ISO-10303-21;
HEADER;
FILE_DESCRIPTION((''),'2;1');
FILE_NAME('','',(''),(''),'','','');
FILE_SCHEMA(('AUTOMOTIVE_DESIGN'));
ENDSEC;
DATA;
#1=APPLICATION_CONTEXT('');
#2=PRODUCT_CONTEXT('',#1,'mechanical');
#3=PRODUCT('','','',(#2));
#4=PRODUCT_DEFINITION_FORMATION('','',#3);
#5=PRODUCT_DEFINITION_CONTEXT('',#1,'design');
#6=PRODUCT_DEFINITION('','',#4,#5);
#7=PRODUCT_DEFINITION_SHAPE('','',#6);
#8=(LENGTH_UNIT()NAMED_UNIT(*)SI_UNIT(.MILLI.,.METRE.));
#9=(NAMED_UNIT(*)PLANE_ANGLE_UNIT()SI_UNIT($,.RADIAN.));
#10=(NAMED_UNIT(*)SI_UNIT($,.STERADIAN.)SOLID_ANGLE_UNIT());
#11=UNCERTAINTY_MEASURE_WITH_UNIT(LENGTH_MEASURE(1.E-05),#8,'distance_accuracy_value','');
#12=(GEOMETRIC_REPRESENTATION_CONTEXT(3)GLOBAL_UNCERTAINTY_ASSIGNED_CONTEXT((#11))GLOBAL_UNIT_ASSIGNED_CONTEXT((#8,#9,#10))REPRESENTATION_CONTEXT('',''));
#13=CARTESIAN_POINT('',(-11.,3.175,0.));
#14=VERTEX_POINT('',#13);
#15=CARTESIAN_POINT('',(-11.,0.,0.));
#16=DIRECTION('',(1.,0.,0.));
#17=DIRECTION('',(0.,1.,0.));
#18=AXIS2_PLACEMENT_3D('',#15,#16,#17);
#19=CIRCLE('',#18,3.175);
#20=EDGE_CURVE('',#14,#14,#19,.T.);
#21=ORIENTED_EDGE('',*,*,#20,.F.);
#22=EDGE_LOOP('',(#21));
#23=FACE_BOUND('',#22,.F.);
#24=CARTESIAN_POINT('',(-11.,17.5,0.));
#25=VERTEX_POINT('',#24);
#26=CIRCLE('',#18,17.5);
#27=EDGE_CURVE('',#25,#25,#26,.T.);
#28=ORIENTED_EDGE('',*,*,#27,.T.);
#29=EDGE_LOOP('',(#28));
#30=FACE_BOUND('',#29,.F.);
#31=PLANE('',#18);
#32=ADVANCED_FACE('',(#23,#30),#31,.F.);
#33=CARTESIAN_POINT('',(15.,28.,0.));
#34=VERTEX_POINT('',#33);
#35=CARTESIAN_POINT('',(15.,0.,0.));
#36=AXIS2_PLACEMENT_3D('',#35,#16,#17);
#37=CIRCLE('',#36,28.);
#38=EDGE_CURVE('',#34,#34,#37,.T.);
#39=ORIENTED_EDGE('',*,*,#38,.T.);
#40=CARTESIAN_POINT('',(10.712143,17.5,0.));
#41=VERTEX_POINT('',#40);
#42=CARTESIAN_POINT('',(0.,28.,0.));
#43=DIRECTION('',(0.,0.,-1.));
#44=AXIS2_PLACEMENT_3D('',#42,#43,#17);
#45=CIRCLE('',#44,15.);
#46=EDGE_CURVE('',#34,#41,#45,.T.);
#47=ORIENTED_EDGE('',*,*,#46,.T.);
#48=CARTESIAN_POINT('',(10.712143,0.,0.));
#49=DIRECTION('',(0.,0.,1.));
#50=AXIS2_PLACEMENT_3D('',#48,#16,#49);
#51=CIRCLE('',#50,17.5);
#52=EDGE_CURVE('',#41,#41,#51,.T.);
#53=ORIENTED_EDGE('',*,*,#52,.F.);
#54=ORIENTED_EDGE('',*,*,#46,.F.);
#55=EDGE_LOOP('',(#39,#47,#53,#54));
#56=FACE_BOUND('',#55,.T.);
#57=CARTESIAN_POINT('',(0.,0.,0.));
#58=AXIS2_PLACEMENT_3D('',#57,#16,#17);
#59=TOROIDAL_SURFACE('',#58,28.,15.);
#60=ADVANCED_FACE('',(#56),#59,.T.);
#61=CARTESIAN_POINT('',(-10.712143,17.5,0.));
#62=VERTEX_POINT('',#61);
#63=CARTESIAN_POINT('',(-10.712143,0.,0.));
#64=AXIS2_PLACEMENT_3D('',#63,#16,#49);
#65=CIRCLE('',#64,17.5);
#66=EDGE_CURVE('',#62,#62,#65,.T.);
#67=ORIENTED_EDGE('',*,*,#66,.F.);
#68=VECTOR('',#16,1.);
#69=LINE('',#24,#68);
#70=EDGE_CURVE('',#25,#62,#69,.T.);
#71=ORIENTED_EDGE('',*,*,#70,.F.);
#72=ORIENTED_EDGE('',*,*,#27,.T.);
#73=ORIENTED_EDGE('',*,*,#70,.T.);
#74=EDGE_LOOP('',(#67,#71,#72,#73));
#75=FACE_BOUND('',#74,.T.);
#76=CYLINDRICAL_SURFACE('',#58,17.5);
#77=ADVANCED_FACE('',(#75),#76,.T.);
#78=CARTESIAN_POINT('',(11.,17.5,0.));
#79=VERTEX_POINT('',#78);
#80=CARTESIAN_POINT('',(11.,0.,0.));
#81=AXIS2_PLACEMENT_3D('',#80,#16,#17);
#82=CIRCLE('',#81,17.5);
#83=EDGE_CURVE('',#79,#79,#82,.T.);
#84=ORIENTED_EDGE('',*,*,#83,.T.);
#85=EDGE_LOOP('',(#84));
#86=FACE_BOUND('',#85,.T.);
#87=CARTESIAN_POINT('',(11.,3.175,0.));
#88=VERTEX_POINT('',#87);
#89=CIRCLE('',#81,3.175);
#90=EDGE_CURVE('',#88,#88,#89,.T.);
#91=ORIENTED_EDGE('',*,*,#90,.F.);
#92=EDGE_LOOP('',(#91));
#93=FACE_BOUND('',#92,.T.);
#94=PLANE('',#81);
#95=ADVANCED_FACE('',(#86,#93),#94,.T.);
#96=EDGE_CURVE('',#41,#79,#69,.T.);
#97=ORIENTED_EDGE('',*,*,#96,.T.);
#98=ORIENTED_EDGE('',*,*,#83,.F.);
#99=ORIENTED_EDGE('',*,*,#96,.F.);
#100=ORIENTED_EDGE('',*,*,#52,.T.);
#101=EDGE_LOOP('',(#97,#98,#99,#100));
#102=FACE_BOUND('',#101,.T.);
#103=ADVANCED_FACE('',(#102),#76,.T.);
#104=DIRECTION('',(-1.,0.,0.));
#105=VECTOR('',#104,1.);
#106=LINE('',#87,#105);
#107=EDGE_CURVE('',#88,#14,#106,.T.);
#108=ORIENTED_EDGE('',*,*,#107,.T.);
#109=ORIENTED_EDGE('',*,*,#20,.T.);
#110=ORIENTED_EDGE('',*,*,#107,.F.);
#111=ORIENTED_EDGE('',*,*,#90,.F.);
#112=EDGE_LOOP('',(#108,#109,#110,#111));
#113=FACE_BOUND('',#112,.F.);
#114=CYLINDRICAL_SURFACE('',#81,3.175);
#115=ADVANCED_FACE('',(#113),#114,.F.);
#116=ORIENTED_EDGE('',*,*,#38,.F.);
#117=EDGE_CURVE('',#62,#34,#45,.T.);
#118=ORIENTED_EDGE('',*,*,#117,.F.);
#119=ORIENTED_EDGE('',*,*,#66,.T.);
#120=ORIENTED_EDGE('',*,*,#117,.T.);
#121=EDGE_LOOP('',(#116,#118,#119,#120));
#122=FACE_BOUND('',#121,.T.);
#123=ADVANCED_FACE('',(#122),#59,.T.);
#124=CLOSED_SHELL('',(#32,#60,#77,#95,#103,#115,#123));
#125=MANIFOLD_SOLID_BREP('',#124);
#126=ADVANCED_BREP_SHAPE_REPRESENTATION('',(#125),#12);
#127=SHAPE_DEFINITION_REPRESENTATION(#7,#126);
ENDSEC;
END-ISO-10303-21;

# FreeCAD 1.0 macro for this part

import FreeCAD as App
import Part
import Sketcher
from FreeCAD import Vector

doc = App.newDocument("Part")
body = doc.addObject("PartDesign::Body", "Body")

# Sketch on YZ plane
sketch1 = body.newObject("Sketcher::SketchObject", "Sketch")
sketch1.AttachmentSupport = (doc.getObject("YZ_Plane"), [""])
sketch1.MapMode = "FlatFace"
sketch1.addGeometry(Part.Circle(Vector(0, 0, 0), Vector(0, 0, 1), 18), False)
sketch1.addConstraint([
    Sketcher.Constraint("Coincident", 0, 3, -1, 1),
    Sketcher.Constraint("Diameter", 0, 35.0),
])
pad1 = body.newObject("PartDesign::Pad", "Pad")
pad1.Profile = sketch1
pad1.Length = 22
pad1.Midplane = True

# Sketch on XZ plane
sketch2 = body.newObject("Sketcher::SketchObject", "Sketch001")
sketch2.AttachmentSupport = (doc.getObject("XZ_Plane"), [""])
sketch2.MapMode = "FlatFace"
sketch2.addGeometry(Part.Circle(Vector(0, -28, 0), Vector(0, 0, 1), 15), False)
sketch2.addConstraint([
    Sketcher.Constraint("PointOnObject", 0, 3, -2),
    Sketcher.Constraint("Diameter", 0, 30.0),
    Sketcher.Constraint("DistanceY", 0, 3, -1, 1, 28.0),
])

# Sketch on YZ plane
sketch3 = body.newObject("Sketcher::SketchObject", "Sketch002")
sketch3.AttachmentSupport = (doc.getObject("YZ_Plane"), [""])
sketch3.MapMode = "FlatFace"
sketch3.addGeometry(Part.Circle(Vector(0, 0, 0), Vector(0, 0, 1), 28), False)
sketch3.addConstraint([
    Sketcher.Constraint("Coincident", 0, 3, -1, 1),
    Sketcher.Constraint("Diameter", 0, 56.0),
])
doc.recompute()

additivepipe = body.newObject("PartDesign::AdditivePipe", "AdditivePipe")
additivepipe.Profile = sketch2
additivepipe.Spine = (sketch3, ["Edge1"])

# Sketch on YZ plane
sketch4 = body.newObject("Sketcher::SketchObject", "Sketch003")
sketch4.AttachmentSupport = (doc.getObject("YZ_Plane"), [""])
sketch4.MapMode = "FlatFace"
sketch4.AttachmentOffset = App.Placement(Vector(0, 0, 11), App.Rotation())
sketch4.addGeometry(Part.Circle(Vector(0, 0, 0), Vector(0, 0, 1), 3.2), False)
sketch4.addConstraint([
    Sketcher.Constraint("Coincident", 0, 3, -1, 1),
    Sketcher.Constraint("Diameter", 0, 6.35),
])
pocket1 = body.newObject("PartDesign::Pocket", "Pocket")
pocket1.Profile = sketch4
pocket1.Type = "ThroughAll"

doc.recompute()
